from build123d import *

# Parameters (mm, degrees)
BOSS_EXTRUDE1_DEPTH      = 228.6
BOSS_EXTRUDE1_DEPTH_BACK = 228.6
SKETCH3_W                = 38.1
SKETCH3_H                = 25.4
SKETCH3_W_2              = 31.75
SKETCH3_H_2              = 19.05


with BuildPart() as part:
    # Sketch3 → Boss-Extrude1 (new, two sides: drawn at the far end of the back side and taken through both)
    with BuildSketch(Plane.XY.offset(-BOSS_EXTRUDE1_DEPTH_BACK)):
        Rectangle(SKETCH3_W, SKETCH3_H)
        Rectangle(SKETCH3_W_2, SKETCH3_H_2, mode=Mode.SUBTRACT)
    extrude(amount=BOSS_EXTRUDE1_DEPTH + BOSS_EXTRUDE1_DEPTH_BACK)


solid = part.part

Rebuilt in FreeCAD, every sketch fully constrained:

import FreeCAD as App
import Part
import Sketcher

V = App.Vector
Q = App.Units.Quantity


def add_polygon(sketch, points):
    """Adds a closed chain of lines whose ends are joined by coincident constraints."""
    first, n = sketch.GeometryCount, len(points)
    for a, b in zip(points, points[1:] + points[:1]):
        sketch.addGeometry(Part.LineSegment(App.Vector(*a, 0), App.Vector(*b, 0)), False)
    for i in range(n):
        sketch.addConstraint(Sketcher.Constraint("Coincident", first + i, 2, first + (i + 1) % n, 1))

doc = App.newDocument("Part")
body = doc.addObject("PartDesign::Body", "Body")

sketch1 = body.newObject("Sketcher::SketchObject", "Sketch")
sketch1.AttachmentSupport = (doc.getObject("XY_Plane"), [""])
sketch1.MapMode = "FlatFace"
add_polygon(sketch1, [(-19, 13), (-19, -13), (19, -13), (19, 13)])
add_polygon(sketch1, [(16, -10), (-16, -10), (-16, 10), (16, 10)])
sketch1.addConstraint([
    Sketcher.Constraint("Vertical", 0),
    Sketcher.Constraint("Horizontal", 1),
    Sketcher.Constraint("Vertical", 2),
    Sketcher.Constraint("Horizontal", 3),
    Sketcher.Constraint("Horizontal", 4),
    Sketcher.Constraint("Vertical", 5),
    Sketcher.Constraint("Horizontal", 6),
    Sketcher.Constraint("Vertical", 7),
    Sketcher.Constraint("Symmetric", 0, 2, 2, 2, -1, 1),
    Sketcher.Constraint("Symmetric", 4, 2, 6, 2, -1, 1),
    Sketcher.Constraint("DistanceY", 0, 2, 0, 1, Q("1 in")),
    Sketcher.Constraint("DistanceX", 1, 1, 1, 2, Q("1.5 in")),
    Sketcher.Constraint("DistanceX", 4, 2, 4, 1, Q("1.25 in")),
    Sketcher.Constraint("DistanceY", 5, 1, 5, 2, Q("0.75 in")),
])
pad1 = body.newObject("PartDesign::Pad", "Pad")
pad1.Profile = sketch1
pad1.Type = "TwoLengths"
pad1.Length = Q("9 in")
pad1.Length2 = Q("9 in")

doc.recompute()
